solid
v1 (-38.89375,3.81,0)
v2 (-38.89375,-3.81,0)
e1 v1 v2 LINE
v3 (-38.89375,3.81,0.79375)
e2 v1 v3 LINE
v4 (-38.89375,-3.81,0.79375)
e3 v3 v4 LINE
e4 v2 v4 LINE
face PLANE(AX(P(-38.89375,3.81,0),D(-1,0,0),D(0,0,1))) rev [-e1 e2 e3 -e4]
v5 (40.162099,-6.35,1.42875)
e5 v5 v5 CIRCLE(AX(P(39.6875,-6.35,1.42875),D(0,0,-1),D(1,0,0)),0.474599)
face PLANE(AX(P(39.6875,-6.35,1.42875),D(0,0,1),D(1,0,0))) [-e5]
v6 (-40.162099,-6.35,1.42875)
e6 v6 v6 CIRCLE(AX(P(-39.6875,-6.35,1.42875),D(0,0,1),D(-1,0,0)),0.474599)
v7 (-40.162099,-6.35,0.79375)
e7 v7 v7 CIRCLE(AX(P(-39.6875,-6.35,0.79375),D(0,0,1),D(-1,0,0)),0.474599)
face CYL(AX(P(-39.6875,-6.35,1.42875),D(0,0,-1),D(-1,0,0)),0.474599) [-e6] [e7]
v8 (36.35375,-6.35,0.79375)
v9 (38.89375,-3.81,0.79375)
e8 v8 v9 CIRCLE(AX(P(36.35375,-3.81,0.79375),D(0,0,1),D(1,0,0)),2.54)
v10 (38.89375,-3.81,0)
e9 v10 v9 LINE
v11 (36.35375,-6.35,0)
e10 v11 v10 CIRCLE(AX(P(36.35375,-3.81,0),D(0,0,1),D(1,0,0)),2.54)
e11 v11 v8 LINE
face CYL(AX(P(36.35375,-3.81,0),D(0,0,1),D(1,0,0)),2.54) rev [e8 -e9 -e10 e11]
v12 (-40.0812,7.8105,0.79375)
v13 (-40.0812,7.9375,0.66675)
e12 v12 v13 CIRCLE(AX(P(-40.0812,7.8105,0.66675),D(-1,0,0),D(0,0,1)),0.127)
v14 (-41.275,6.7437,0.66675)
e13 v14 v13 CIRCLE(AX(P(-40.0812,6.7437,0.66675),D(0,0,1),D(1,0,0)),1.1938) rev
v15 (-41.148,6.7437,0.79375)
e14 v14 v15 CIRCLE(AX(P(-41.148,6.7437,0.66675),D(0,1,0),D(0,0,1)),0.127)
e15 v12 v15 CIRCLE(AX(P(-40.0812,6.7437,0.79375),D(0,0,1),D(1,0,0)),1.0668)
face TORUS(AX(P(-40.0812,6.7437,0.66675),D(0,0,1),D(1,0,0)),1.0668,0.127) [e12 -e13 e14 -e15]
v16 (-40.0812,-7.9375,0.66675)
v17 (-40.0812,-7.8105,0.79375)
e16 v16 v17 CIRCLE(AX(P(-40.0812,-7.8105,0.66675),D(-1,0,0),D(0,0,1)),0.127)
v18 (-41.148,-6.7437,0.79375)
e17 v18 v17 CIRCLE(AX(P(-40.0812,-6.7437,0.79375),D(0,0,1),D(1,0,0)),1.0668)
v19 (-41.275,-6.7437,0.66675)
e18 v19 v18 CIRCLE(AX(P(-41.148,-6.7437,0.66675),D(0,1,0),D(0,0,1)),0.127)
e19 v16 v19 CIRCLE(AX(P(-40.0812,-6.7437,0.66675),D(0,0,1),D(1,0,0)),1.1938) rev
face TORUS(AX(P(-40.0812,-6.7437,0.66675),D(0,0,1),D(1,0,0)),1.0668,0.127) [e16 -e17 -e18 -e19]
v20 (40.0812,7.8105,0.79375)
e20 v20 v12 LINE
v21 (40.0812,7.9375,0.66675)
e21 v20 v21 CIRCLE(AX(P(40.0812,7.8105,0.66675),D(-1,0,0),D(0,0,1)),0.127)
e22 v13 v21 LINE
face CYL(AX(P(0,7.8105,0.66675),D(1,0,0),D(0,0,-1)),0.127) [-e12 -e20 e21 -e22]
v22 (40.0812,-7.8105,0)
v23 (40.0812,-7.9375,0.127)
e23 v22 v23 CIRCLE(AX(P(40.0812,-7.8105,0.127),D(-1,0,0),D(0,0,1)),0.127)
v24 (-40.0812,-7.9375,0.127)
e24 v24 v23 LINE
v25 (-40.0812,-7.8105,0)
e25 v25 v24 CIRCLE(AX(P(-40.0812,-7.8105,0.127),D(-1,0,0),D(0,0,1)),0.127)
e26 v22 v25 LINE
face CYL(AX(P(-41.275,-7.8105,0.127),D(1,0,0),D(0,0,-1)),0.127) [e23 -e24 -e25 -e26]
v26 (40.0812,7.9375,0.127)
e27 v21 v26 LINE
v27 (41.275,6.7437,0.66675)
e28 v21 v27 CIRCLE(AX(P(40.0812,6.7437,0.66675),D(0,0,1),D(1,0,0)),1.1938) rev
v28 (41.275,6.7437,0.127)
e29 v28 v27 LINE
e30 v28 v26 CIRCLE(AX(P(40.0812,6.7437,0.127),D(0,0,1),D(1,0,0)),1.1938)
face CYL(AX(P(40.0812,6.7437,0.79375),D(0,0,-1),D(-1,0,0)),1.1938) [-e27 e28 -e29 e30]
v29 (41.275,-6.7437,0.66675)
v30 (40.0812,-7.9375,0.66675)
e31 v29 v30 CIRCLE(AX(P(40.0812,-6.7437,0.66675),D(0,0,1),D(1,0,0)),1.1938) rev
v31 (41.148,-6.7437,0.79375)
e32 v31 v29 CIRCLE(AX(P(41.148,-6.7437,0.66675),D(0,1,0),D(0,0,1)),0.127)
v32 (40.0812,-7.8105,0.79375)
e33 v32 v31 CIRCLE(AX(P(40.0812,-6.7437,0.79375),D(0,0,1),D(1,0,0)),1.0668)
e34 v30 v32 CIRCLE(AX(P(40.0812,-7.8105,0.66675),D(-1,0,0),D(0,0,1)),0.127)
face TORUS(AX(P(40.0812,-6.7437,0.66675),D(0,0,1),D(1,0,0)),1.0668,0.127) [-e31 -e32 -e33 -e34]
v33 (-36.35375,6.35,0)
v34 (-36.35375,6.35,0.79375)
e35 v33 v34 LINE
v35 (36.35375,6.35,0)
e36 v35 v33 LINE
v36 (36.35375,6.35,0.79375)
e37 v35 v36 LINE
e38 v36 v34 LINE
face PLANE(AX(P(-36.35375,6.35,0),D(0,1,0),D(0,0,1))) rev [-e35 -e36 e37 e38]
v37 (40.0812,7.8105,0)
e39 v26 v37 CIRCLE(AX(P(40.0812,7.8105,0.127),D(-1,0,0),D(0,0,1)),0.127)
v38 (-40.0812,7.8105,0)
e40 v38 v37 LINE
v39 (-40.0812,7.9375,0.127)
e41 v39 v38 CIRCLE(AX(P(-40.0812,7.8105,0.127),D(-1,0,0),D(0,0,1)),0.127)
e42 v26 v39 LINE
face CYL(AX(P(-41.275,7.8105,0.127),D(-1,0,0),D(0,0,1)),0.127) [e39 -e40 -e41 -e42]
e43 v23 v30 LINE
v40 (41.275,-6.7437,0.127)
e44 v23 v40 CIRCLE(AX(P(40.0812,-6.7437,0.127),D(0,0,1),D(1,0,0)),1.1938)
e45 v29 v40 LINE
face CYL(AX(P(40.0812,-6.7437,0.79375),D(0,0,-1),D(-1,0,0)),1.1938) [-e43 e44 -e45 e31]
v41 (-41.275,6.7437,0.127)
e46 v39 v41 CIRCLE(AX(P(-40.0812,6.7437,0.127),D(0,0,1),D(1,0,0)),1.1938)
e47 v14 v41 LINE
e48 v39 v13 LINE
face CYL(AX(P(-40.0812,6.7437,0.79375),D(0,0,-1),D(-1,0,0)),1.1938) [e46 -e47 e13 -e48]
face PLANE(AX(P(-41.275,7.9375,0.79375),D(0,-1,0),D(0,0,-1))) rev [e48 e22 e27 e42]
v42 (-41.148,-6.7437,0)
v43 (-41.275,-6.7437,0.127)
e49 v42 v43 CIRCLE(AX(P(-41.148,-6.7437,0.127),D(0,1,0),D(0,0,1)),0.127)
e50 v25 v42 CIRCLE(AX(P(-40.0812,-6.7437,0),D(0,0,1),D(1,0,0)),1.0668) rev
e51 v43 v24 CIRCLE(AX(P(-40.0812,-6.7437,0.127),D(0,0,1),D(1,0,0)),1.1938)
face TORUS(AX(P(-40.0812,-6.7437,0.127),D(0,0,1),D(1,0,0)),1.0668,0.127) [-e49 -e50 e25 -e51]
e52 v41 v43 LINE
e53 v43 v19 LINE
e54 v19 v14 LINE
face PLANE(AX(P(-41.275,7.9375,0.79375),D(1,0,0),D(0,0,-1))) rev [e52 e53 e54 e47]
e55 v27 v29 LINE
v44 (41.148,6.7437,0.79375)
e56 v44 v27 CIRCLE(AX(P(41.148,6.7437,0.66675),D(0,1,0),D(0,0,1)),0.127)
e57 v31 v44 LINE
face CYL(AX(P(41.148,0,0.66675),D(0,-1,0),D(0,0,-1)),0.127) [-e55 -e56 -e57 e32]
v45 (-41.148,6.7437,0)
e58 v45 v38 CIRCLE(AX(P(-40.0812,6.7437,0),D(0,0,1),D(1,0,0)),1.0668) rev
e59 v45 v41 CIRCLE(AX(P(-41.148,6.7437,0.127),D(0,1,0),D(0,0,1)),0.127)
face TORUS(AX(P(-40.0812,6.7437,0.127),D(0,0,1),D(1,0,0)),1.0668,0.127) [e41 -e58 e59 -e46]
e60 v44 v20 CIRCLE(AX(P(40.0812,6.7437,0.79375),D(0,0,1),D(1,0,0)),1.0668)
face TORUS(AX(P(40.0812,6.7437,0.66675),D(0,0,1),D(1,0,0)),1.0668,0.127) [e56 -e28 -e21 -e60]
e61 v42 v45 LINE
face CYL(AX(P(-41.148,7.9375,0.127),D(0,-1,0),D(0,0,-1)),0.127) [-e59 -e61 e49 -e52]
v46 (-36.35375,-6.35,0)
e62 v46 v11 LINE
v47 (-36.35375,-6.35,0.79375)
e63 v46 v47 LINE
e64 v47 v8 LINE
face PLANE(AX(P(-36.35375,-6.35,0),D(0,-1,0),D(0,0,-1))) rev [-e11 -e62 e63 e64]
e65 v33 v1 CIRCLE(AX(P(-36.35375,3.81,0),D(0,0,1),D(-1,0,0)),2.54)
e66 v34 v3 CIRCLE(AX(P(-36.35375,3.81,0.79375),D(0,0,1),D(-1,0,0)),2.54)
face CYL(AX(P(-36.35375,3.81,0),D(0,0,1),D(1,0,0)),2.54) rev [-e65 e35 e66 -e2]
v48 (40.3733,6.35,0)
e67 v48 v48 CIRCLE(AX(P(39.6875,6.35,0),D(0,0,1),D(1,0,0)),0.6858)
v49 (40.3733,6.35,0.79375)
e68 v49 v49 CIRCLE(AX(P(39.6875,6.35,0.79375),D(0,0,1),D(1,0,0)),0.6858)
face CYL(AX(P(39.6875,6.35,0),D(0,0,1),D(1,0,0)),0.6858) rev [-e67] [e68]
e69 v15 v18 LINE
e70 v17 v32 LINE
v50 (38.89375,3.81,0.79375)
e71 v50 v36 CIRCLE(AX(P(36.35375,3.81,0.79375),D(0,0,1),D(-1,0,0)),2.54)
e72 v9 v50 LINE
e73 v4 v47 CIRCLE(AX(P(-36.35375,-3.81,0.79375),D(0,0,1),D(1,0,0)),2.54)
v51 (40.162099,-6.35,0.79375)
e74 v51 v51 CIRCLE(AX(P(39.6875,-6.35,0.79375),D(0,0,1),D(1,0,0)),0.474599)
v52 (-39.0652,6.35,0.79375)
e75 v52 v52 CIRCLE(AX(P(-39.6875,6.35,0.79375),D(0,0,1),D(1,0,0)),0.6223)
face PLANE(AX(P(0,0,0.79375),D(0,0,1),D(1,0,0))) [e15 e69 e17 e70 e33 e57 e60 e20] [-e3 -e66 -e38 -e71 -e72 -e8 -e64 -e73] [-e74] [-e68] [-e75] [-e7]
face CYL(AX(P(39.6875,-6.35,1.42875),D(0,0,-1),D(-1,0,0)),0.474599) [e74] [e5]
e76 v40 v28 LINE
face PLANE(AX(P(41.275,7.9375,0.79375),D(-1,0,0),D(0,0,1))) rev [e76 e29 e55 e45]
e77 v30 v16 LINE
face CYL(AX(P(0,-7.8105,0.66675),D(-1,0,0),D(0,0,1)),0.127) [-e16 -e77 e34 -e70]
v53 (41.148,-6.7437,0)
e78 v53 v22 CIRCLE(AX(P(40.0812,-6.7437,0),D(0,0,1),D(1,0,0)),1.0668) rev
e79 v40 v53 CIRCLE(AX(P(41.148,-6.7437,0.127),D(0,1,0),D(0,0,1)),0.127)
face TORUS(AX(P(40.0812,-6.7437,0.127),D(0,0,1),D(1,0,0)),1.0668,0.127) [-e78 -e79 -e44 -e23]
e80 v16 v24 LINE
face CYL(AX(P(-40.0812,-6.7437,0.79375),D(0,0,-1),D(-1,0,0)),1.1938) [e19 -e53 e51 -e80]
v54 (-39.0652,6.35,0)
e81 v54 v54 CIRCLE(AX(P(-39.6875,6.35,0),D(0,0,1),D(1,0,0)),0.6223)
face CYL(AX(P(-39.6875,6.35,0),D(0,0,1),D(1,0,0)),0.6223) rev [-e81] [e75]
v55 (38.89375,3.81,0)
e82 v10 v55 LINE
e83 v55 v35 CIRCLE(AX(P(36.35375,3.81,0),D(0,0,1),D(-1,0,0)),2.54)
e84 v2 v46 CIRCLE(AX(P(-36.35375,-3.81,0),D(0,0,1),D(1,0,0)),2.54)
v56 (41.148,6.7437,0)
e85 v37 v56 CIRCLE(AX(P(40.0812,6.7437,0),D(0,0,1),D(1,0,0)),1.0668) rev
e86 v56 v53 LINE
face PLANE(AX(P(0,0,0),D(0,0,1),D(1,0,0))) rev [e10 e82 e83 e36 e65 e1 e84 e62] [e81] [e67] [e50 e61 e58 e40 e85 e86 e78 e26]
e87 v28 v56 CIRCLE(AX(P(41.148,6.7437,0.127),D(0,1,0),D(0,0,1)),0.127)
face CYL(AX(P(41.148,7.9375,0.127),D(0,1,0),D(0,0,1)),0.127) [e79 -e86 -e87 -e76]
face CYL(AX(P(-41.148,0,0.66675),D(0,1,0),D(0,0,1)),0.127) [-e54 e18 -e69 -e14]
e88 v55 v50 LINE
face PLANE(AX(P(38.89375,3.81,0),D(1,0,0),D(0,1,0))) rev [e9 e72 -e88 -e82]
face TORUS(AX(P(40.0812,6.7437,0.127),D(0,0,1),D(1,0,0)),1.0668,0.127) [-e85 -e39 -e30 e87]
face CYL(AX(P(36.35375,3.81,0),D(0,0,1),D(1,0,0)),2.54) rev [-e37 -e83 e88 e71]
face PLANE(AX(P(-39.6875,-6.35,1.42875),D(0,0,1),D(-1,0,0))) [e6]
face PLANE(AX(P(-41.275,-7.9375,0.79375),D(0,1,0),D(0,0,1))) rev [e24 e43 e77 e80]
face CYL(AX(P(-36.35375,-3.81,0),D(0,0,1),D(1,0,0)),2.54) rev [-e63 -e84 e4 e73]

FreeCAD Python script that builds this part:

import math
import FreeCAD as App
import Part
import Sketcher

V = App.Vector
Q = App.Units.Quantity


def edges_at(feature, points):
    """Names of the edges that pass closest to the given points."""
    edges = feature.Shape.Edges
    near = lambda p: min(range(len(edges)), key=lambda i: edges[i].distToShape(Part.Vertex(*p))[0])
    return sorted({f"Edge{near(p) + 1}" for p in points})


def add_polygon(sketch, points):
    """Adds a closed chain of lines whose ends are joined by coincident constraints."""
    first, n = sketch.GeometryCount, len(points)
    for a, b in zip(points, points[1:] + points[:1]):
        sketch.addGeometry(Part.LineSegment(App.Vector(*a, 0), App.Vector(*b, 0)), False)
    for i in range(n):
        sketch.addConstraint(Sketcher.Constraint("Coincident", first + i, 2, first + (i + 1) % n, 1))

doc = App.newDocument("Part")
body = doc.addObject("PartDesign::Body", "Body")

sketch1 = body.newObject("Sketcher::SketchObject", "Sketch")
sketch1.AttachmentSupport = (doc.getObject("XY_Plane"), [""])
sketch1.MapMode = "FlatFace"
add_polygon(sketch1, [(-41.275, 7.9375), (-41.275, -7.9375), (41.275, -7.9375), (41.275, 7.9375)])
sketch1.addConstraint(Sketcher.Constraint("Vertical", 0))
sketch1.addConstraint(Sketcher.Constraint("Horizontal", 1))
sketch1.addConstraint(Sketcher.Constraint("Vertical", 2))
sketch1.addConstraint(Sketcher.Constraint("Horizontal", 3))
sketch1.addConstraint(Sketcher.Constraint("Symmetric", 0, 2, 2, 2, -1, 1))
sketch1.addConstraint(Sketcher.Constraint("DistanceX", 1, 1, 1, 2, Q("3.25 in")))
sketch1.addConstraint(Sketcher.Constraint("DistanceY", 0, 2, 0, 1, Q("0.625 in")))
pad1 = body.newObject("PartDesign::Pad", "Pad")
pad1.Profile = sketch1
pad1.Length = Q("0.03125 in")

sketch2 = body.newObject("Sketcher::SketchObject", "Sketch001")
sketch2.AttachmentSupport = (doc.getObject("XY_Plane"), [""])
sketch2.MapMode = "FlatFace"
sketch2.AttachmentOffset = App.Placement(V(0, 0, 0.03125 * 25.4), App.Rotation())
sketch2.addGeometry(Part.Circle(V(39.6875, 6.35, 0), V(0, 0, 1), 0.474599), False)
sketch2.addConstraint(Sketcher.Constraint("DistanceY", -1, 1, 0, 3, Q("0.25 in")))
sketch2.addConstraint(Sketcher.Constraint("DistanceX", -1, 1, 0, 3, Q("1.5625 in")))
sketch2.addConstraint(Sketcher.Constraint("Diameter", 0, 0.949198))
pad2 = body.newObject("PartDesign::Pad", "Pad001")
pad2.Profile = sketch2
pad2.Length = Q("0.025 in")
doc.recompute()

mirrored = body.newObject("PartDesign::Mirrored", "Mirrored")
mirrored.Originals = [pad2]
mirrored.MirrorPlane = (doc.getObject("XZ_Plane"), [""])
body.Tip = mirrored
doc.recompute()

mirrored2 = body.newObject("PartDesign::Mirrored", "Mirrored001")
mirrored2.Originals = [pad2]
mirrored2.MirrorPlane = (doc.getObject("YZ_Plane"), [""])
body.Tip = mirrored2

sketch3 = body.newObject("Sketcher::SketchObject", "Sketch002")
sketch3.AttachmentSupport = (doc.getObject("XY_Plane"), [""])
sketch3.MapMode = "FlatFace"
sketch3.AttachmentOffset = App.Placement(V(0, 0, 0.03125 * 25.4), App.Rotation())
sketch3.addGeometry(Part.Circle(V(-39.6875, -6.35, 0), V(0, 0, 1), 0.474599), False)
sketch3.addConstraint(Sketcher.Constraint("DistanceY", 0, 3, -1, 1, Q("0.25 in")))
sketch3.addConstraint(Sketcher.Constraint("DistanceX", 0, 3, -1, 1, Q("1.5625 in")))
sketch3.addConstraint(Sketcher.Constraint("Diameter", 0, 0.949198))
pad3 = body.newObject("PartDesign::Pad", "Pad002")
pad3.Profile = sketch3
pad3.Length = Q("0.025 in")

sketch4 = body.newObject("Sketcher::SketchObject", "Sketch003")
sketch4.AttachmentSupport = (doc.getObject("XY_Plane"), [""])
sketch4.MapMode = "FlatFace"
sketch4.AttachmentOffset = App.Placement(V(0, 0, 0.03125 * 25.4), App.Rotation())
sketch4.addGeometry(Part.LineSegment(V(36.35375, 6.35, 0), V(-36.35375, 6.35, 0)), False)
sketch4.addGeometry(Part.ArcOfCircle(Part.Circle(V(-36.35375, 3.81, 0), V(0, 0, 1), 2.54), math.radians(90), math.radians(180)), False)
sketch4.addGeometry(Part.LineSegment(V(-38.89375, 3.81, 0), V(-38.89375, -3.81, 0)), False)
sketch4.addGeometry(Part.ArcOfCircle(Part.Circle(V(-36.35375, -3.81, 0), V(0, 0, 1), 2.54), math.radians(-180), math.radians(-90)), False)
sketch4.addGeometry(Part.LineSegment(V(-36.35375, -6.35, 0), V(36.35375, -6.35, 0)), False)
sketch4.addGeometry(Part.ArcOfCircle(Part.Circle(V(36.35375, -3.81, 0), V(0, 0, 1), 2.54), math.radians(-90), math.radians(0)), False)
sketch4.addGeometry(Part.LineSegment(V(38.89375, -3.81, 0), V(38.89375, 3.81, 0)), False)
sketch4.addGeometry(Part.ArcOfCircle(Part.Circle(V(36.35375, 3.81, 0), V(0, 0, 1), 2.54), math.radians(0), math.radians(90)), False)
sketch4.addConstraint(Sketcher.Constraint("Tangent", 0, 2, 1, 1))
sketch4.addConstraint(Sketcher.Constraint("Tangent", 1, 2, 2, 1))
sketch4.addConstraint(Sketcher.Constraint("Tangent", 2, 2, 3, 1))
sketch4.addConstraint(Sketcher.Constraint("Tangent", 3, 2, 4, 1))
sketch4.addConstraint(Sketcher.Constraint("Tangent", 4, 2, 5, 1))
sketch4.addConstraint(Sketcher.Constraint("Tangent", 5, 2, 6, 1))
sketch4.addConstraint(Sketcher.Constraint("Tangent", 6, 2, 7, 1))
sketch4.addConstraint(Sketcher.Constraint("Tangent", 7, 2, 0, 1))
sketch4.addConstraint(Sketcher.Constraint("Horizontal", 0))
sketch4.addConstraint(Sketcher.Constraint("Vertical", 2))
sketch4.addConstraint(Sketcher.Constraint("Horizontal", 4))
sketch4.addConstraint(Sketcher.Constraint("Vertical", 6))
sketch4.addConstraint(Sketcher.Constraint("Equal", 1, 3))
sketch4.addConstraint(Sketcher.Constraint("Equal", 3, 5))
sketch4.addConstraint(Sketcher.Constraint("Equal", 5, 7))
sketch4.addConstraint(Sketcher.Constraint("Symmetric", 1, 3, 5, 3, -1, 1))
sketch4.addConstraint(Sketcher.Constraint("Radius", 1, Q("0.1 in")))
sketch4.addConstraint(Sketcher.Constraint("DistanceY", 2, 2, 2, 1, Q("0.3 in")))
sketch4.addConstraint(Sketcher.Constraint("DistanceX", 0, 2, 0, 1, Q("2.8625 in")))
pocket1 = body.newObject("PartDesign::Pocket", "Pocket")
pocket1.Profile = sketch4
pocket1.Type = "ThroughAll"

sketch5 = body.newObject("Sketcher::SketchObject", "Sketch004")
sketch5.AttachmentSupport = (doc.getObject("XY_Plane"), [""])
sketch5.MapMode = "FlatFace"
sketch5.AttachmentOffset = App.Placement(V(0, 0, 1.42875), App.Rotation())
sketch5.addGeometry(Part.Circle(V(-39.6875, 6.35, 0), V(0, 0, 1), 0.6223), False)
sketch5.addGeometry(Part.Circle(V(39.6875, 6.35, 0), V(0, 0, 1), 0.6858), False)
sketch5.addConstraint(Sketcher.Constraint("Symmetric", 0, 3, 1, 3, -2))
sketch5.addConstraint(Sketcher.Constraint("Diameter", 0, Q("0.049 in")))
sketch5.addConstraint(Sketcher.Constraint("Diameter", 1, Q("0.054 in")))
sketch5.addConstraint(Sketcher.Constraint("DistanceY", -1, 1, 0, 3, Q("0.25 in")))
sketch5.addConstraint(Sketcher.Constraint("DistanceX", 0, 3, -1, 1, Q("1.5625 in")))
pocket2 = body.newObject("PartDesign::Pocket", "Pocket001")
pocket2.Profile = sketch5
pocket2.Type = "ThroughAll"
doc.recompute()

fillet = body.newObject("PartDesign::Fillet", "Fillet")
fillet.Base = (pocket2, edges_at(pocket2, [
    (41.275, -7.938, 0.397),
    (-41.275, -7.938, 0.397),
    (-41.275, 7.938, 0.397),
    (41.275, 7.938, 0.397),
]))
fillet.Radius = Q("0.047 in")
doc.recompute()

fillet2 = body.newObject("PartDesign::Fillet", "Fillet001")
fillet2.Base = (fillet, edges_at(fillet, [
    (0, 7.938, 0),
    (0, 7.938, 0.794),
    (41.275, 0, 0),
    (0, -7.938, 0),
    (-41.275, 0, 0),
    (-40.925, 7.588, 0),
    (-40.925, -7.588, 0),
    (40.925, -7.588, 0),
    (40.925, 7.588, 0),
    (41.275, 0, 0.794),
    (-41.275, 0, 0.794),
    (0, -7.938, 0.794),
    (-40.925, 7.588, 0.794),
    (-40.925, -7.588, 0.794),
    (40.925, -7.588, 0.794),
    (40.925, 7.588, 0.794),
]))
fillet2.Radius = Q("0.005 in")

doc.recompute()
